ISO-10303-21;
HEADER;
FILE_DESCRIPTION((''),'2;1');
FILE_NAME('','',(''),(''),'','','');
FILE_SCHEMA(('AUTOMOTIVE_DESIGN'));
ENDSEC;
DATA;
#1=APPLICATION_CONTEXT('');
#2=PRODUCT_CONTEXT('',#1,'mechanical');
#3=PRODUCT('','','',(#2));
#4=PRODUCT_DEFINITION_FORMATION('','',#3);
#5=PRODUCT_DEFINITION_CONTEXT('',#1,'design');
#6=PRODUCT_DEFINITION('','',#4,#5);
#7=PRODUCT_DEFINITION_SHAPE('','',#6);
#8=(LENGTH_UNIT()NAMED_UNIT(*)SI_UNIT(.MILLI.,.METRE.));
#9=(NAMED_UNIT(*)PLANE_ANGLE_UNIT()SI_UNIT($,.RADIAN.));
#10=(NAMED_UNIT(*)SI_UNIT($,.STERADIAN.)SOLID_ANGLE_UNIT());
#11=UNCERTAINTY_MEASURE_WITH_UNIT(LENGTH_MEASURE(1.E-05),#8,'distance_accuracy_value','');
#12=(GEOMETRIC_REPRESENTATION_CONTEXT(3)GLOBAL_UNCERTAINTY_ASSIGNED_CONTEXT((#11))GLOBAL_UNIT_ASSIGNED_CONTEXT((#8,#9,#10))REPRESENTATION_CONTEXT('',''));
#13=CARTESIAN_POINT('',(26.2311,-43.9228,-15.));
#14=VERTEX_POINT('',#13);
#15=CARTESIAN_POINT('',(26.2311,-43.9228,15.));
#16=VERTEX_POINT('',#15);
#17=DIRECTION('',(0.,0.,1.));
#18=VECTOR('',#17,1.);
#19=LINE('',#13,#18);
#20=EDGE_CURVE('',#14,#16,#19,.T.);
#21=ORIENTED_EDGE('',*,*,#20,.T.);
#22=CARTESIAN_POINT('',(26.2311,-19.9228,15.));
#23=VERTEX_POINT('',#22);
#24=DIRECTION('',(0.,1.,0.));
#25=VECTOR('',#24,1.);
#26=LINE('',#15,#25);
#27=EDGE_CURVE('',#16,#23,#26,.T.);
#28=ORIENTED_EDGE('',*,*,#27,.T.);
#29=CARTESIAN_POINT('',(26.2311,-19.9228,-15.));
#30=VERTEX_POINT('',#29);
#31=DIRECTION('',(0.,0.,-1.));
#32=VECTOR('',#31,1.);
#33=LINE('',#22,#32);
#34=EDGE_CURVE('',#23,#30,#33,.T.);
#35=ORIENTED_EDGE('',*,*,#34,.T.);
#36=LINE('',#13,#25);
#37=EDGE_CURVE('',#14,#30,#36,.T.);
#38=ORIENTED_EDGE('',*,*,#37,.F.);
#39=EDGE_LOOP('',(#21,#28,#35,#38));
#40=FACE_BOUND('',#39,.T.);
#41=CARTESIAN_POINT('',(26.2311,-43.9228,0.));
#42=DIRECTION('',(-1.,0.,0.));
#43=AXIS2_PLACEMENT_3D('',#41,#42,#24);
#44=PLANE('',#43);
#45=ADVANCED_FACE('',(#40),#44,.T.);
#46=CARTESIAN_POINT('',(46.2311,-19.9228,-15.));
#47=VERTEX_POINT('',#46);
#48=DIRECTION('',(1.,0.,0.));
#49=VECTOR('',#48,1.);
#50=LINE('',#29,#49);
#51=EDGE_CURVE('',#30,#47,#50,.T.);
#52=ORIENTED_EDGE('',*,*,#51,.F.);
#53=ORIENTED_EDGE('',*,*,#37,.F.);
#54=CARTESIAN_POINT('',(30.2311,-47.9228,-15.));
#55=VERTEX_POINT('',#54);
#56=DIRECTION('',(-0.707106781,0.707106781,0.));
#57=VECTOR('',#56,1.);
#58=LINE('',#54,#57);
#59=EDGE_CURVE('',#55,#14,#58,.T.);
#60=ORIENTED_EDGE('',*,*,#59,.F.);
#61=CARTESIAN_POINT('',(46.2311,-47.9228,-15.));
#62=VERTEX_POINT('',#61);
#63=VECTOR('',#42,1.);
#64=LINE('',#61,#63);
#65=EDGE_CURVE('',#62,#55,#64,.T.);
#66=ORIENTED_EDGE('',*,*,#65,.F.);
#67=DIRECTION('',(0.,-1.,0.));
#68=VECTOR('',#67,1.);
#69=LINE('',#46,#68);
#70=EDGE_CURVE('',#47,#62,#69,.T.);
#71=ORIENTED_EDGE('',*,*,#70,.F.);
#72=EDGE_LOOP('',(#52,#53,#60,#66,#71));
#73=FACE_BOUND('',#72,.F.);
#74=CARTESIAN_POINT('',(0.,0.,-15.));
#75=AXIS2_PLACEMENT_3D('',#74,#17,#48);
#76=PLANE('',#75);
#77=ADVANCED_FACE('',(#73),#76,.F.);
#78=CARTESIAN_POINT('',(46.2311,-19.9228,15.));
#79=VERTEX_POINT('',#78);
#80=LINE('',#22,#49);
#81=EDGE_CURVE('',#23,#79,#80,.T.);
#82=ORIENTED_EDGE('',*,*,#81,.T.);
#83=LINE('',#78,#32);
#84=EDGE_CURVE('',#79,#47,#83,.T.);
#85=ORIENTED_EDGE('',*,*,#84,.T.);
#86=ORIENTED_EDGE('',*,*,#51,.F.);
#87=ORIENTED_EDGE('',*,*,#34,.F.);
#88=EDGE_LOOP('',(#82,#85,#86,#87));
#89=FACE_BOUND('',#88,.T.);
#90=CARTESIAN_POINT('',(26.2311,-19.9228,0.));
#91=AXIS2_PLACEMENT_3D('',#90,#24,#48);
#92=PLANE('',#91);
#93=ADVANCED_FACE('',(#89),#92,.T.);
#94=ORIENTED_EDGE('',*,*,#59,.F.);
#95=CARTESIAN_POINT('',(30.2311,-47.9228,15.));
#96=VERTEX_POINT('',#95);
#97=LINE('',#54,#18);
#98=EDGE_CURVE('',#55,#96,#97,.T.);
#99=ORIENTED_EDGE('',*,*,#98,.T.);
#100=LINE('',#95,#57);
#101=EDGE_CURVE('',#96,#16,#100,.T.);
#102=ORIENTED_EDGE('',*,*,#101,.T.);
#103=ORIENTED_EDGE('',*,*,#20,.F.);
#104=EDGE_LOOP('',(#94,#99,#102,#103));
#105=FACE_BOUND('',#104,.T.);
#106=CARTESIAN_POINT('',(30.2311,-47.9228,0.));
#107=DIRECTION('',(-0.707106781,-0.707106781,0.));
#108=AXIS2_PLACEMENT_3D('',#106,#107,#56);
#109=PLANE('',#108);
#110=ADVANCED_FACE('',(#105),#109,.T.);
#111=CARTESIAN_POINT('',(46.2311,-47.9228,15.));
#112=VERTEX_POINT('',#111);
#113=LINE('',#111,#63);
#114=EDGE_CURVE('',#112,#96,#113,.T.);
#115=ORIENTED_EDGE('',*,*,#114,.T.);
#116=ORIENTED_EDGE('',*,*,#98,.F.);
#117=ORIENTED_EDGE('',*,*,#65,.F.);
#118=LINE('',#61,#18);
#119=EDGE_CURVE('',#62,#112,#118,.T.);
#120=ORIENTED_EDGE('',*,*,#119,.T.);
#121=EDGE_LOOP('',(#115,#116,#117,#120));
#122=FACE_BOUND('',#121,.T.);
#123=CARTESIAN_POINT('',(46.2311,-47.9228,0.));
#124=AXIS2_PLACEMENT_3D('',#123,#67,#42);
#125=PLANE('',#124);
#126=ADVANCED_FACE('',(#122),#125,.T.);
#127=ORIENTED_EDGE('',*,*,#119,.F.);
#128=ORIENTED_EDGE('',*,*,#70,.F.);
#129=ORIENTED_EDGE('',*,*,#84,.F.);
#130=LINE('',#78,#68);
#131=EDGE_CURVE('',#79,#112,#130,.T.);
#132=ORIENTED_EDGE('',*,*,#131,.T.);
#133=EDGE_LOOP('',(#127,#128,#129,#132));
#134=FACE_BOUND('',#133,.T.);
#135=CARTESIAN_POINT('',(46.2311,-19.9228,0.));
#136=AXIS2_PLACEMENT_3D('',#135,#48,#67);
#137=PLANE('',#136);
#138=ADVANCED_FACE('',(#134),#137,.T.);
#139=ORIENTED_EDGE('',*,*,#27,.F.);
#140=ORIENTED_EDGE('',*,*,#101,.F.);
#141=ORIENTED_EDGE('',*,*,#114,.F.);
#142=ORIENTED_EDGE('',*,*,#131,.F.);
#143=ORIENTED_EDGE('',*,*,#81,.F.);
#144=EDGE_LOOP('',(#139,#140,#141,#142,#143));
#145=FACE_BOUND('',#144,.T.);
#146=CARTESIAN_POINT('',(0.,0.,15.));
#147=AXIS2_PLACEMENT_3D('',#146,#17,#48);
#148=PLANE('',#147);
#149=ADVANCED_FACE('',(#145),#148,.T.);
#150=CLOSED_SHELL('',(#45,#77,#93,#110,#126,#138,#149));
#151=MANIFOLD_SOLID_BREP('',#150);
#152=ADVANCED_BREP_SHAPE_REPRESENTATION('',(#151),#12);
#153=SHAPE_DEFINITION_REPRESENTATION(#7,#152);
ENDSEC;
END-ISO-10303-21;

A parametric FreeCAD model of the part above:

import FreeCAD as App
import Part
import Sketcher
Q = App.Units.Quantity

doc = App.newDocument("Part")
body = doc.addObject("PartDesign::Body", "Body")

sketch1 = body.newObject("Sketcher::SketchObject", "Sketch")
sketch1.AttachmentSupport = (doc.getObject("XY_Plane"), [""])
sketch1.MapMode = "FlatFace"
sketch1.addGeometry([
    Part.LineSegment(App.Vector(26.2311, -19.9228, 0), App.Vector(26.2311, -43.9228, 0)),
    Part.LineSegment(App.Vector(26.2311, -43.9228, 0), App.Vector(30.2311, -47.9228, 0)),
    Part.LineSegment(App.Vector(30.2311, -47.9228, 0), App.Vector(46.2311, -47.9228, 0)),
    Part.LineSegment(App.Vector(46.2311, -47.9228, 0), App.Vector(46.2311, -19.9228, 0)),
    Part.LineSegment(App.Vector(46.2311, -19.9228, 0), App.Vector(26.2311, -19.9228, 0)),
], False)
sketch1.addConstraint([
    Sketcher.Constraint("Coincident", 0, 2, 1, 1),
    Sketcher.Constraint("Coincident", 1, 2, 2, 1),
    Sketcher.Constraint("Coincident", 2, 2, 3, 1),
    Sketcher.Constraint("Coincident", 3, 2, 4, 1),
    Sketcher.Constraint("Coincident", 4, 2, 0, 1),
    Sketcher.Constraint("Vertical", 0),
    Sketcher.Constraint("Horizontal", 2),
    Sketcher.Constraint("Vertical", 3),
    Sketcher.Constraint("Horizontal", 4),
    Sketcher.Constraint("DistanceX", 4, 2, 4, 1, 20.0),
    Sketcher.Constraint("DistanceY", 3, 1, 3, 2, 28.0),
    Sketcher.Constraint("Angle", 1, Q("-45 deg")),
    Sketcher.Constraint("DistanceX", 0, 2, 1, 2, 4.0),
    Sketcher.Constraint("DistanceX", -1, 1, 0, 2, 26.231),
    Sketcher.Constraint("DistanceY", 0, 2, -1, 1, 43.9228),
])
pad1 = body.newObject("PartDesign::Pad", "Pad")
pad1.Profile = sketch1
pad1.Length = 30
pad1.Midplane = True

doc.recompute()
